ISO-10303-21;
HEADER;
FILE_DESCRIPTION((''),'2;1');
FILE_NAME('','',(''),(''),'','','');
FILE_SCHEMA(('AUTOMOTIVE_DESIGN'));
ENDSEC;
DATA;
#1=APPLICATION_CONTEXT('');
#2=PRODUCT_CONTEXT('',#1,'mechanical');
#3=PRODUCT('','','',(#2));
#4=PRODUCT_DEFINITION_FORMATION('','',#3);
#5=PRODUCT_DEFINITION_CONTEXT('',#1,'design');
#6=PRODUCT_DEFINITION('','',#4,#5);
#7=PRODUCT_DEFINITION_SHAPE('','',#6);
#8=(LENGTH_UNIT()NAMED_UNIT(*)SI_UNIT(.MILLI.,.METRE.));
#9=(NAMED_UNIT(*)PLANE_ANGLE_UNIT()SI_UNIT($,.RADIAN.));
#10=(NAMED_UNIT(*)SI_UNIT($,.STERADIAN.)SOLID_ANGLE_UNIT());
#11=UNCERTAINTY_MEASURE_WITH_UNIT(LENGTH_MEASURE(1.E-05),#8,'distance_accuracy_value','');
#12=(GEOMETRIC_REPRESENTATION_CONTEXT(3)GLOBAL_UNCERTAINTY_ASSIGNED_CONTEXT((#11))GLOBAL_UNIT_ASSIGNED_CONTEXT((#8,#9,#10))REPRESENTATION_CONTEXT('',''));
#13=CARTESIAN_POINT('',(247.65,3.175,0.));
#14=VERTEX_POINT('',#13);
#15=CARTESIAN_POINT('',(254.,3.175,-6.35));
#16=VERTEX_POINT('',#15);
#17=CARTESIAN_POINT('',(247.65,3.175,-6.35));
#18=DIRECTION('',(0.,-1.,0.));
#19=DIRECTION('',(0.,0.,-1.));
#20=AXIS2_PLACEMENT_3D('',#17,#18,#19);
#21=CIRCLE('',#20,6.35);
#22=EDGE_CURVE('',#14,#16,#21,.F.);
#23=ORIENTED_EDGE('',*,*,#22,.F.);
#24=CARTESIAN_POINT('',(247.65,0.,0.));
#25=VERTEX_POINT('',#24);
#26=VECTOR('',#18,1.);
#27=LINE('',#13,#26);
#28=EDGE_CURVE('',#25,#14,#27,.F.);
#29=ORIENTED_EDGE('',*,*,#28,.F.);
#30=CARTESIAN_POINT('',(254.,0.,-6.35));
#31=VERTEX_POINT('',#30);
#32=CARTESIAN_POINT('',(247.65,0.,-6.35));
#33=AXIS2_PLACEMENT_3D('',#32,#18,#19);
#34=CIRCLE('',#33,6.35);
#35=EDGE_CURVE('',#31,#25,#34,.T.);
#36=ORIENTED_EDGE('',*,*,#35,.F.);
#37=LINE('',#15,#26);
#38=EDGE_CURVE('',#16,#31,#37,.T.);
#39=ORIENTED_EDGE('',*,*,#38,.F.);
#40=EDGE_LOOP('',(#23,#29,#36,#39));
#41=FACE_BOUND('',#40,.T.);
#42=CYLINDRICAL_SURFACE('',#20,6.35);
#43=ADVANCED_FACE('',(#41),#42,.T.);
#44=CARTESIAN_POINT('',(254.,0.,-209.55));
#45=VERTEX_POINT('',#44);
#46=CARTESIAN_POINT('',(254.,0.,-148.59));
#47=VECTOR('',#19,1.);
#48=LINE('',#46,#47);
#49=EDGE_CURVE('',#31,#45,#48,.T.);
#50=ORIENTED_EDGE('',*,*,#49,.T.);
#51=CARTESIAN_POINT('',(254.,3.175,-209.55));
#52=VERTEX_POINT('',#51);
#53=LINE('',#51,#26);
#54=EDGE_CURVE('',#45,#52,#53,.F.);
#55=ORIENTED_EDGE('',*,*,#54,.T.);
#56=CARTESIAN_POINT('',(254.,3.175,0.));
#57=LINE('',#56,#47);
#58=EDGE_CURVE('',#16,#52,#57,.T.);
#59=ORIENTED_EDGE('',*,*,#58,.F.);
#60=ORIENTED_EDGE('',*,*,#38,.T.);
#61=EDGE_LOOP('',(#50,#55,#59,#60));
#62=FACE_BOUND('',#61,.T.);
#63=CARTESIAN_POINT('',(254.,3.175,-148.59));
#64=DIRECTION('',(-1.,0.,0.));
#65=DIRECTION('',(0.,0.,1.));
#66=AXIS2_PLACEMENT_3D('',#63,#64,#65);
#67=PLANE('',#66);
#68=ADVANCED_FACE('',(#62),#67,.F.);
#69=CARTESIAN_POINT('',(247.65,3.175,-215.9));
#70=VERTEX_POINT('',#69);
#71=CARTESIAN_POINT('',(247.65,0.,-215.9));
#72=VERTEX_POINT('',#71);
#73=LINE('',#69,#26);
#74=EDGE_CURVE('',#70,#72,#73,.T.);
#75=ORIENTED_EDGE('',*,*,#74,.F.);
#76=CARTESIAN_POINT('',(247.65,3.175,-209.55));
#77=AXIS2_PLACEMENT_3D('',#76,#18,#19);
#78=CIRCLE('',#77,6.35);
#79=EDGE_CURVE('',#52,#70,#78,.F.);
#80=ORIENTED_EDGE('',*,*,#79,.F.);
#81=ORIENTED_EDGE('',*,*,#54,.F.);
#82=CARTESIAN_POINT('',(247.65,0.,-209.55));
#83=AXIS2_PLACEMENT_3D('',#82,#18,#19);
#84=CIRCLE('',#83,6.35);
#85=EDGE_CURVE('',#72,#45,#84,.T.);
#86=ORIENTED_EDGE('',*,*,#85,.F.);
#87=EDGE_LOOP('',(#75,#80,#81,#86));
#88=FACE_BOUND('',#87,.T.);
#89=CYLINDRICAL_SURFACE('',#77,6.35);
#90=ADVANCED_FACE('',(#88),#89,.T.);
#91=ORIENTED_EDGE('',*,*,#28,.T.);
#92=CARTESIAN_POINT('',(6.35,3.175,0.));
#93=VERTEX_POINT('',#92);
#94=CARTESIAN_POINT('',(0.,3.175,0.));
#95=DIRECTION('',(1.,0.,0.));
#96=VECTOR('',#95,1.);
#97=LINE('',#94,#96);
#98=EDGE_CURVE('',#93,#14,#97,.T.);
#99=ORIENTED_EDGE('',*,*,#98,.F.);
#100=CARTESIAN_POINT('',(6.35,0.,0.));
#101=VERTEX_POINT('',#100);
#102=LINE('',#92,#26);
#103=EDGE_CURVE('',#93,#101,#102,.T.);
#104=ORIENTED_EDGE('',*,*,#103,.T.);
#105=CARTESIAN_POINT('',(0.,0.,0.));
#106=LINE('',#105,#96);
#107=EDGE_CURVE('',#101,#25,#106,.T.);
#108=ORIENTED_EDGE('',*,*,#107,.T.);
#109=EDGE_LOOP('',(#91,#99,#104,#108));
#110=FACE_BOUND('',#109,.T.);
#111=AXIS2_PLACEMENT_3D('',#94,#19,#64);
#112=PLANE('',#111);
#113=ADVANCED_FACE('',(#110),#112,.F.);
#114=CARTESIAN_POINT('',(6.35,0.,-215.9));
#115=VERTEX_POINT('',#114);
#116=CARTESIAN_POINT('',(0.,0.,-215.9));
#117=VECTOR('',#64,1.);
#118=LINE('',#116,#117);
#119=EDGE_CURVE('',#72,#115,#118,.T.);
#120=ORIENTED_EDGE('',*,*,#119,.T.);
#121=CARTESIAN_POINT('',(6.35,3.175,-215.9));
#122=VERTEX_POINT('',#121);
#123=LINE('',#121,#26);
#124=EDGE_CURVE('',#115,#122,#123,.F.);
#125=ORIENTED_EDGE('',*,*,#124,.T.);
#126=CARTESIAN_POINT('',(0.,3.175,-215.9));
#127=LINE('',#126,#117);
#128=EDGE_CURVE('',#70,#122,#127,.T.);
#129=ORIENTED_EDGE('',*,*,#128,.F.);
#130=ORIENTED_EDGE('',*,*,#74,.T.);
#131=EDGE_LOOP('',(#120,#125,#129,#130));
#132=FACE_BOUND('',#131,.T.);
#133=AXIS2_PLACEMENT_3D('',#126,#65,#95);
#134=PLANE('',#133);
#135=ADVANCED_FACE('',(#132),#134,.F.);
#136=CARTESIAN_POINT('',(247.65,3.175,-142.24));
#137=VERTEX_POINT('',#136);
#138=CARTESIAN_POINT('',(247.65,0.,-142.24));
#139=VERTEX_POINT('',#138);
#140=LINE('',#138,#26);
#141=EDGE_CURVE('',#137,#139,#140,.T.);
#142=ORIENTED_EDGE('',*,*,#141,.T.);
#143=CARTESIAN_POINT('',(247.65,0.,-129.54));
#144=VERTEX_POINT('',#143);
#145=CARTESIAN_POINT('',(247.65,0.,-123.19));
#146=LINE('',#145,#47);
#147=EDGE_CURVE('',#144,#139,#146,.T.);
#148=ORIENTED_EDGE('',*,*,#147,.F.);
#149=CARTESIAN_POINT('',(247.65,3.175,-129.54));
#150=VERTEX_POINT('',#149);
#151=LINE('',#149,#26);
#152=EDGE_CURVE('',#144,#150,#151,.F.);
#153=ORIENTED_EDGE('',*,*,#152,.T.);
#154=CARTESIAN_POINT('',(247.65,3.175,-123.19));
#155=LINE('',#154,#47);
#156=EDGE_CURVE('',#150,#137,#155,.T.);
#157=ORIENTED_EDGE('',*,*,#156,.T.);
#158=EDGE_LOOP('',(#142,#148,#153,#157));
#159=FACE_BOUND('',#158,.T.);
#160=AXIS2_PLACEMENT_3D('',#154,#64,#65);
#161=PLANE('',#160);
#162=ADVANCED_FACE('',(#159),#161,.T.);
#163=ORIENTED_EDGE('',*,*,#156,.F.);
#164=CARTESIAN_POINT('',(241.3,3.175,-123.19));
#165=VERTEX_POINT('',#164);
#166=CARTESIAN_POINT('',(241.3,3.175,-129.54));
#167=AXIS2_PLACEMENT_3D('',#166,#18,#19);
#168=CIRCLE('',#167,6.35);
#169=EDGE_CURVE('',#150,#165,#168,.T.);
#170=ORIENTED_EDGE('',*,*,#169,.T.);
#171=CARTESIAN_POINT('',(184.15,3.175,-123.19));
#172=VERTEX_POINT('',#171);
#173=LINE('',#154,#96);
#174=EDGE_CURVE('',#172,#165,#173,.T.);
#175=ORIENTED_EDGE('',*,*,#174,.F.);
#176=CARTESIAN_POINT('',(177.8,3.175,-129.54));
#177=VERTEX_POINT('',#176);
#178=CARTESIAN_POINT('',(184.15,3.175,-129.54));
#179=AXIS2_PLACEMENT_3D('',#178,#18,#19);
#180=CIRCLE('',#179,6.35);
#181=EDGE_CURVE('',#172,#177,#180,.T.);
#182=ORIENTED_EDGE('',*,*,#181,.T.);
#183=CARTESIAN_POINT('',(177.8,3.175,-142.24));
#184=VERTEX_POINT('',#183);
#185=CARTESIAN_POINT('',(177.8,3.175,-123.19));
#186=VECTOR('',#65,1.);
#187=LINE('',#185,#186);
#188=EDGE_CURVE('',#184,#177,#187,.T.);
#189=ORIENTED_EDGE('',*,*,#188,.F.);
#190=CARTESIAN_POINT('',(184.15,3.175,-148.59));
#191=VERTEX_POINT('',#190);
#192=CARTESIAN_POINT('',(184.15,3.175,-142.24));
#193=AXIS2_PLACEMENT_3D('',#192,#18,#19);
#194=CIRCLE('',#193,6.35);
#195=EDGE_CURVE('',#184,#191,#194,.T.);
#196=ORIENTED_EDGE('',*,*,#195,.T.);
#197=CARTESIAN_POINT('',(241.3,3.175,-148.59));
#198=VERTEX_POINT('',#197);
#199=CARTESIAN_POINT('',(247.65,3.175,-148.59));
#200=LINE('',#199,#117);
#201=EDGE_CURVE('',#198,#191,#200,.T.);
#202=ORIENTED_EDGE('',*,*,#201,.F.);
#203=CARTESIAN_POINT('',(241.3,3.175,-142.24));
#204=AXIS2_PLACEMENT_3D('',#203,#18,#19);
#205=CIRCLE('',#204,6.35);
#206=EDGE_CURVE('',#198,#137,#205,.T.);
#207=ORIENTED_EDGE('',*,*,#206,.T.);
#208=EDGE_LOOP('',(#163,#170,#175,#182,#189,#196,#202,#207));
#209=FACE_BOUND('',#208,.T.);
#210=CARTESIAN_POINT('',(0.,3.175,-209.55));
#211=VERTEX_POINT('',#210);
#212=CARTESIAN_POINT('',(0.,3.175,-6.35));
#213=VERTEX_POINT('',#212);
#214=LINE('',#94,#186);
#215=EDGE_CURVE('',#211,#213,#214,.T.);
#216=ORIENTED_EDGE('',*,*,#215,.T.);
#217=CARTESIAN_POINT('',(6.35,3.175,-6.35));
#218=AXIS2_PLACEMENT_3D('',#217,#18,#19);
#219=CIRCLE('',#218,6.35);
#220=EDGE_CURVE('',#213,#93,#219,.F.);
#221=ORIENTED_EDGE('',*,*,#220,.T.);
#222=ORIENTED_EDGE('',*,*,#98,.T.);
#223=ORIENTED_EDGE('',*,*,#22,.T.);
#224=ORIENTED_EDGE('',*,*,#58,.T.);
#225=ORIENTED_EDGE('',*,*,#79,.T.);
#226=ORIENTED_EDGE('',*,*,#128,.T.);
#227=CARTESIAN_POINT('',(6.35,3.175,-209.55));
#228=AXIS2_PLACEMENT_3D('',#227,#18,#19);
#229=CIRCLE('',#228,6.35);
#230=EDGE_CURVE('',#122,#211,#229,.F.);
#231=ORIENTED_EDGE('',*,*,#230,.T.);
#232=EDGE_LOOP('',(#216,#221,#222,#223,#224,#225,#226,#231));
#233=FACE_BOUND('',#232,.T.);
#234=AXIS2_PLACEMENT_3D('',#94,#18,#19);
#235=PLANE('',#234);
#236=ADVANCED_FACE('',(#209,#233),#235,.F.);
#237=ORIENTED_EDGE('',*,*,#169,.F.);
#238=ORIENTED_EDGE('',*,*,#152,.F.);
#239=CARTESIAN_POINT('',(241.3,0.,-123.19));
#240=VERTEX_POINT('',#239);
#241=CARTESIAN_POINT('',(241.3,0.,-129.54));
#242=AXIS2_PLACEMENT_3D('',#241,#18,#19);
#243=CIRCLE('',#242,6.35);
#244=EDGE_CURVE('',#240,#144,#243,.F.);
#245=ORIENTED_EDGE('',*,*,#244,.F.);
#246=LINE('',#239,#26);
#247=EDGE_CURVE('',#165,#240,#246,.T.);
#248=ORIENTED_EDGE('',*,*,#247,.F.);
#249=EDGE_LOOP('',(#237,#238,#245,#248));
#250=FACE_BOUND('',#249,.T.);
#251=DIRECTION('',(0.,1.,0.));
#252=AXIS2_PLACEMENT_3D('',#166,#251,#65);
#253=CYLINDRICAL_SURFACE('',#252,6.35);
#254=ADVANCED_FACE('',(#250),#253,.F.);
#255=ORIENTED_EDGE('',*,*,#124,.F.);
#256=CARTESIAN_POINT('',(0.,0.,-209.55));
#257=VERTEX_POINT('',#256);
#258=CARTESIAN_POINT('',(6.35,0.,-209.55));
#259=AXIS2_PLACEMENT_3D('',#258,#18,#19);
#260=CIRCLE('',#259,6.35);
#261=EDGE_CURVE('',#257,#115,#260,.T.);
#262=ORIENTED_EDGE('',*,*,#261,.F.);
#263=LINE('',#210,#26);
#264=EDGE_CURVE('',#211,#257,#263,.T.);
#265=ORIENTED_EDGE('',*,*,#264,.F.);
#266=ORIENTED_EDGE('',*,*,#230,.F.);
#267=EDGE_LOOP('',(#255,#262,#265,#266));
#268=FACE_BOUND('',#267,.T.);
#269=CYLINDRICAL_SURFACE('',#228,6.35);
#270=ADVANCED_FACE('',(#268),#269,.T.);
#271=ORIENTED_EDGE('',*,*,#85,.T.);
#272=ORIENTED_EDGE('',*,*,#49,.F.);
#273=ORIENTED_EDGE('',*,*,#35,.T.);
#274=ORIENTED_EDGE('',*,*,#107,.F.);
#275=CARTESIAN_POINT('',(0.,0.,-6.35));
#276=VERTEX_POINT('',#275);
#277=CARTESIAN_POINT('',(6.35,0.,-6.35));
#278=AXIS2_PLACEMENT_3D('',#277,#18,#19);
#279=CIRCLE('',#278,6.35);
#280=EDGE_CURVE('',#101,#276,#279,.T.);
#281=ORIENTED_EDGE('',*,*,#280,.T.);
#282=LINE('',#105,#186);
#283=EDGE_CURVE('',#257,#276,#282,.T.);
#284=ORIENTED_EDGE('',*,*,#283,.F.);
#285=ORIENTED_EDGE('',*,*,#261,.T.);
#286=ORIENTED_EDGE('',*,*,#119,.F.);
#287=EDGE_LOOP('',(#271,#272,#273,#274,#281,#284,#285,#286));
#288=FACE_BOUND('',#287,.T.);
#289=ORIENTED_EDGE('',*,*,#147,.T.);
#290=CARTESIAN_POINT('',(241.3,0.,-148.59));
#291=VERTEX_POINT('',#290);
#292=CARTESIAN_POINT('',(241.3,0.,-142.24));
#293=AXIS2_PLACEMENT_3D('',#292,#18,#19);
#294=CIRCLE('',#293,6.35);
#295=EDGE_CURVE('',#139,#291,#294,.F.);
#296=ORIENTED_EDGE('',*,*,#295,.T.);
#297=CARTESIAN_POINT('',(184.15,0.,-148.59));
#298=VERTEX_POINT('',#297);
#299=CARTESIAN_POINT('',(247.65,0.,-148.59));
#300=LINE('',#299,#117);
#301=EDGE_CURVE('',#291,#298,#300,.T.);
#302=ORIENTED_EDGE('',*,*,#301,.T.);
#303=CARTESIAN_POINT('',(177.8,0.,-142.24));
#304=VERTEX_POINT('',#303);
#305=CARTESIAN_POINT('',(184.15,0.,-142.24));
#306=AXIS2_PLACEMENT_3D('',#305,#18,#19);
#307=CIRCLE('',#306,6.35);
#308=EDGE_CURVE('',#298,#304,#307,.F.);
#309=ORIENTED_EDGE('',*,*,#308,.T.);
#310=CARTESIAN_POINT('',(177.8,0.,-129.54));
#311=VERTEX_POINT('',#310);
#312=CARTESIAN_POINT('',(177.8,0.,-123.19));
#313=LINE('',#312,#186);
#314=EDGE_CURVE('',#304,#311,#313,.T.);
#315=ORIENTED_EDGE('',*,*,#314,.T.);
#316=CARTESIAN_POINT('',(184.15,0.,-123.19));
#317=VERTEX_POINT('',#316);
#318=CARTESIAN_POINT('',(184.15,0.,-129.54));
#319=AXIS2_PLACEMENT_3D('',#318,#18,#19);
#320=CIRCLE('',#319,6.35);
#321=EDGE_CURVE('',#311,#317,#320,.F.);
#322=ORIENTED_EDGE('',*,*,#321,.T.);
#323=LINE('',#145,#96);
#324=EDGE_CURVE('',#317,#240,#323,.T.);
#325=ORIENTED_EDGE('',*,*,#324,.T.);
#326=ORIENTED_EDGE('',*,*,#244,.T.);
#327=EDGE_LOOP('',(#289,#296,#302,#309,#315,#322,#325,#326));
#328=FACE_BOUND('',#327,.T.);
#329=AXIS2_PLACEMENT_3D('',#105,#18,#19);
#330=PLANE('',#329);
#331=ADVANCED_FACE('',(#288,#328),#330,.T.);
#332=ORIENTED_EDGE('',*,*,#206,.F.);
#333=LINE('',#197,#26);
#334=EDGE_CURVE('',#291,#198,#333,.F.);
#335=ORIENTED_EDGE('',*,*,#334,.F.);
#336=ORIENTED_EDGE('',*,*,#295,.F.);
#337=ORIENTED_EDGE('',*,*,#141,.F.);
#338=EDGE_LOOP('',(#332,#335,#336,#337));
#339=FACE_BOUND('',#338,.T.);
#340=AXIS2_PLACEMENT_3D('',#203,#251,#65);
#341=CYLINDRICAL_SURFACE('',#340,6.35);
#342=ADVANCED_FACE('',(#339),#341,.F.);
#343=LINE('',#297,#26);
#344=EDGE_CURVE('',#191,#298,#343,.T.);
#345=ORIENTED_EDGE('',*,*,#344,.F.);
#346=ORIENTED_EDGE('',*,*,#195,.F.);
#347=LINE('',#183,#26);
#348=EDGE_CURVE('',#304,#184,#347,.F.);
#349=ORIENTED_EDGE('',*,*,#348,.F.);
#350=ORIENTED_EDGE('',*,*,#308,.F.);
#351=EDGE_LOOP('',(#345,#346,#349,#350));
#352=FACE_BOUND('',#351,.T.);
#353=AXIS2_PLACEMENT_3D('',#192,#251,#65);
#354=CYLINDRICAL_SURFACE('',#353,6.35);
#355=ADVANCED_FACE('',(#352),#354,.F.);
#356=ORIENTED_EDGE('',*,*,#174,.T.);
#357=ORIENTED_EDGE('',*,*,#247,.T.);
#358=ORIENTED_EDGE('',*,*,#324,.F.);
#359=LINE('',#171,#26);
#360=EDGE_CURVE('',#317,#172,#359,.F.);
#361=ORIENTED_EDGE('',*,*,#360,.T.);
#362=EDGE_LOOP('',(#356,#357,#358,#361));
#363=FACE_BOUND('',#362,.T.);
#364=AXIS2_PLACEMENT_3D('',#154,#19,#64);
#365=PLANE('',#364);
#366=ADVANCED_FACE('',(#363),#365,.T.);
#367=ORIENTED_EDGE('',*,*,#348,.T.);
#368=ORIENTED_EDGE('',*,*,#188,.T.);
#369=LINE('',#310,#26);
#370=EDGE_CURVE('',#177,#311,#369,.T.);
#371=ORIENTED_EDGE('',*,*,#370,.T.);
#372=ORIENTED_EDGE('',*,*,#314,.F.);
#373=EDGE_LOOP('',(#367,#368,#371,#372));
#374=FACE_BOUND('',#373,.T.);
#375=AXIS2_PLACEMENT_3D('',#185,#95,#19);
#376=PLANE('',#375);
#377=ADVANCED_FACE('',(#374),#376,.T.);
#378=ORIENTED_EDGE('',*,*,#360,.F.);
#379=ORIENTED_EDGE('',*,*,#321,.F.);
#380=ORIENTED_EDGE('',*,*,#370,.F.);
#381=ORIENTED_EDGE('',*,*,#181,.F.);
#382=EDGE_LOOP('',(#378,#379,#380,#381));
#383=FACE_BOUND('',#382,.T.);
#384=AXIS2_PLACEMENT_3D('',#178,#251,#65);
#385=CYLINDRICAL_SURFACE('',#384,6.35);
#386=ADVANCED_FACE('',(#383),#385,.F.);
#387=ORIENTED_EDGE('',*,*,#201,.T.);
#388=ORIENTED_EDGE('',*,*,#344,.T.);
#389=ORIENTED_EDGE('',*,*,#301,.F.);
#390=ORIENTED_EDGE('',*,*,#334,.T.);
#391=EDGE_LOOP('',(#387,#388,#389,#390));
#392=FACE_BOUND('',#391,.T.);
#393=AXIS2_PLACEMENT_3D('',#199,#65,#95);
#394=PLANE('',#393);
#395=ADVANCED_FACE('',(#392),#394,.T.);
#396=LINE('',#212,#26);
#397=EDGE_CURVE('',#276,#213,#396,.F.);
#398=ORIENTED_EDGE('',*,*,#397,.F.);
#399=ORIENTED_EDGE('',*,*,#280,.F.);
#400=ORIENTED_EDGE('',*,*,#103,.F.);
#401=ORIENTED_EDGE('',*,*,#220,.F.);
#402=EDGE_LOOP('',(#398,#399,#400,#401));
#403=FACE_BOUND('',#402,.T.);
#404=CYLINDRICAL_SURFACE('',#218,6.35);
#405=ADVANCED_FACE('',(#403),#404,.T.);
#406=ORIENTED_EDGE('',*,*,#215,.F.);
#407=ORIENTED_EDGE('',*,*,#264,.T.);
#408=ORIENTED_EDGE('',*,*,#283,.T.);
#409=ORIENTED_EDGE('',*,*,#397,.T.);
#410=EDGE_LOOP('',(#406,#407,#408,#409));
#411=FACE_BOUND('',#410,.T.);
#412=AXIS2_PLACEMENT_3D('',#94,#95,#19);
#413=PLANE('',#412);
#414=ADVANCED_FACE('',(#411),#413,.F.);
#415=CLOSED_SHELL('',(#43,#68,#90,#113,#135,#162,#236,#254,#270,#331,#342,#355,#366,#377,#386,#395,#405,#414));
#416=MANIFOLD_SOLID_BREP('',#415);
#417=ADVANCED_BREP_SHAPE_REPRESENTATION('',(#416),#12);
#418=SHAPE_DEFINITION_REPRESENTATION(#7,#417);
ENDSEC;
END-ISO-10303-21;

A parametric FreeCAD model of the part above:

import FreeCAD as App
import Part
import Sketcher

V = App.Vector
Q = App.Units.Quantity


def edges_at(feature, points):
    """Names of the edges that pass closest to the given points."""
    edges = feature.Shape.Edges
    near = lambda p: min(range(len(edges)), key=lambda i: edges[i].distToShape(Part.Vertex(*p))[0])
    return sorted({f"Edge{near(p) + 1}" for p in points})


def add_polygon(sketch, points):
    """Adds a closed chain of lines whose ends are joined by coincident constraints."""
    first, n = sketch.GeometryCount, len(points)
    for a, b in zip(points, points[1:] + points[:1]):
        sketch.addGeometry(Part.LineSegment(App.Vector(*a, 0), App.Vector(*b, 0)), False)
    for i in range(n):
        sketch.addConstraint(Sketcher.Constraint("Coincident", first + i, 2, first + (i + 1) % n, 1))

doc = App.newDocument("Part")
body = doc.addObject("PartDesign::Body", "Body")

# Sketch on XZ plane
sketch1 = body.newObject("Sketcher::SketchObject", "Sketch")
sketch1.AttachmentSupport = (doc.getObject("XZ_Plane"), [""])
sketch1.MapMode = "FlatFace"
add_polygon(sketch1, [(254, -215.9), (0, -215.9), (0, 0), (254, 0)])  # lines 0-3
add_polygon(sketch1, [(247.65, -123.19), (177.8, -123.19), (177.8, -148.59), (247.65, -148.59)])  # lines 4-7
sketch1.addConstraint([
    Sketcher.Constraint("Horizontal", 0),
    Sketcher.Constraint("Vertical", 1),
    Sketcher.Constraint("Horizontal", 2),
    Sketcher.Constraint("Vertical", 3),
    Sketcher.Constraint("Horizontal", 4),
    Sketcher.Constraint("Vertical", 5),
    Sketcher.Constraint("Horizontal", 6),
    Sketcher.Constraint("Vertical", 7),
    Sketcher.Constraint("Coincident", 1, 2, -1, 1),
    Sketcher.Constraint("DistanceX", 0, 2, 0, 1, Q("10 in")),
    Sketcher.Constraint("DistanceY", 5, 2, 5, 1, Q("1 in")),
    Sketcher.Constraint("DistanceY", 1, 1, 1, 2, Q("8.5 in")),
    Sketcher.Constraint("DistanceX", -1, 1, 4, 2, Q("7 in")),
    Sketcher.Constraint("DistanceX", 4, 2, 4, 1, Q("2.75 in")),
    Sketcher.Constraint("DistanceY", 4, 2, -1, 1, Q("4.85 in")),
])
pad1 = body.newObject("PartDesign::Pad", "Pad")
pad1.Profile = sketch1
pad1.Length = Q("0.125 in")
pad1.Reversed = True
doc.recompute()

fillet = body.newObject("PartDesign::Fillet", "Fillet")
fillet.Base = (pad1, edges_at(pad1, [
    (0, 1.587, -215.9),
    (254, 1.587, -215.9),
    (254, 1.587, 0),
    (0, 1.587, 0),
    (177.8, 1.587, -148.59),
    (177.8, 1.587, -123.19),
    (247.65, 1.587, -123.19),
    (247.65, 1.587, -148.59),
]))
fillet.Radius = Q("0.25 in")

doc.recompute()
